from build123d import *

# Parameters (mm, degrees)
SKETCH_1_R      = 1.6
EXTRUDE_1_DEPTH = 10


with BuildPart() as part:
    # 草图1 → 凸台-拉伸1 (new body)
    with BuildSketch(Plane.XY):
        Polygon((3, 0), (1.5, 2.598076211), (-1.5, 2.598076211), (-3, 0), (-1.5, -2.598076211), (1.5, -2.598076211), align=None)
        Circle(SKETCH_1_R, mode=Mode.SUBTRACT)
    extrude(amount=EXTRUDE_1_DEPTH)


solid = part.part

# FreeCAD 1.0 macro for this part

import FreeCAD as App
import Part
import Sketcher
Q = App.Units.Quantity

doc = App.newDocument("Part")
body = doc.addObject("PartDesign::Body", "Body")

sketch1 = body.newObject("Sketcher::SketchObject", "Sketch")
sketch1.AttachmentSupport = (doc.getObject("XY_Plane"), [""])
sketch1.MapMode = "FlatFace"
sketch1.addGeometry(Part.LineSegment(App.Vector(3, 0, 0), App.Vector(1.5, 2.6, 0)), False)
sketch1.addGeometry(Part.LineSegment(App.Vector(1.5, 2.6, 0), App.Vector(-1.5, 2.6, 0)), False)
sketch1.addGeometry(Part.LineSegment(App.Vector(-1.5, 2.6, 0), App.Vector(-3, 0, 0)), False)
sketch1.addGeometry(Part.LineSegment(App.Vector(-3, 0, 0), App.Vector(-1.5, -2.6, 0)), False)
sketch1.addGeometry(Part.LineSegment(App.Vector(-1.5, -2.6, 0), App.Vector(1.5, -2.6, 0)), False)
sketch1.addGeometry(Part.LineSegment(App.Vector(1.5, -2.6, 0), App.Vector(3, 0, 0)), False)
sketch1.addGeometry(Part.Circle(App.Vector(0, 0, 0), App.Vector(0, 0, 1), 1.6), False)
sketch1.addConstraint(Sketcher.Constraint("Coincident", 0, 2, 1, 1))
sketch1.addConstraint(Sketcher.Constraint("Coincident", 1, 2, 2, 1))
sketch1.addConstraint(Sketcher.Constraint("Coincident", 2, 2, 3, 1))
sketch1.addConstraint(Sketcher.Constraint("Coincident", 3, 2, 4, 1))
sketch1.addConstraint(Sketcher.Constraint("Coincident", 4, 2, 5, 1))
sketch1.addConstraint(Sketcher.Constraint("Coincident", 5, 2, 0, 1))
sketch1.addConstraint(Sketcher.Constraint("Horizontal", 1))
sketch1.addConstraint(Sketcher.Constraint("Horizontal", 4))
sketch1.addConstraint(Sketcher.Constraint("Coincident", 6, 3, -1, 1))
sketch1.addConstraint(Sketcher.Constraint("Symmetric", 0, 2, 3, 2, -1, 1))
sketch1.addConstraint(Sketcher.Constraint("Symmetric", 2, 2, 5, 2, -1, 1))
sketch1.addConstraint(Sketcher.Constraint("PointOnObject", 2, 2, -1))
sketch1.addConstraint(Sketcher.Constraint("Parallel", 2, 5))
sketch1.addConstraint(Sketcher.Constraint("Vertical", 1, 2, 3, 2))
sketch1.addConstraint(Sketcher.Constraint("Diameter", 6, 3.2))
sketch1.addConstraint(Sketcher.Constraint("DistanceX", 1, 2, 1, 1, 3.0))
sketch1.addConstraint(Sketcher.Constraint("Angle", 0, Q("120 deg")))
sketch1.addConstraint(Sketcher.Constraint("Distance", 0, 3.0))
pad1 = body.newObject("PartDesign::Pad", "Pad")
pad1.Profile = sketch1
pad1.Length = 10

doc.recompute()
